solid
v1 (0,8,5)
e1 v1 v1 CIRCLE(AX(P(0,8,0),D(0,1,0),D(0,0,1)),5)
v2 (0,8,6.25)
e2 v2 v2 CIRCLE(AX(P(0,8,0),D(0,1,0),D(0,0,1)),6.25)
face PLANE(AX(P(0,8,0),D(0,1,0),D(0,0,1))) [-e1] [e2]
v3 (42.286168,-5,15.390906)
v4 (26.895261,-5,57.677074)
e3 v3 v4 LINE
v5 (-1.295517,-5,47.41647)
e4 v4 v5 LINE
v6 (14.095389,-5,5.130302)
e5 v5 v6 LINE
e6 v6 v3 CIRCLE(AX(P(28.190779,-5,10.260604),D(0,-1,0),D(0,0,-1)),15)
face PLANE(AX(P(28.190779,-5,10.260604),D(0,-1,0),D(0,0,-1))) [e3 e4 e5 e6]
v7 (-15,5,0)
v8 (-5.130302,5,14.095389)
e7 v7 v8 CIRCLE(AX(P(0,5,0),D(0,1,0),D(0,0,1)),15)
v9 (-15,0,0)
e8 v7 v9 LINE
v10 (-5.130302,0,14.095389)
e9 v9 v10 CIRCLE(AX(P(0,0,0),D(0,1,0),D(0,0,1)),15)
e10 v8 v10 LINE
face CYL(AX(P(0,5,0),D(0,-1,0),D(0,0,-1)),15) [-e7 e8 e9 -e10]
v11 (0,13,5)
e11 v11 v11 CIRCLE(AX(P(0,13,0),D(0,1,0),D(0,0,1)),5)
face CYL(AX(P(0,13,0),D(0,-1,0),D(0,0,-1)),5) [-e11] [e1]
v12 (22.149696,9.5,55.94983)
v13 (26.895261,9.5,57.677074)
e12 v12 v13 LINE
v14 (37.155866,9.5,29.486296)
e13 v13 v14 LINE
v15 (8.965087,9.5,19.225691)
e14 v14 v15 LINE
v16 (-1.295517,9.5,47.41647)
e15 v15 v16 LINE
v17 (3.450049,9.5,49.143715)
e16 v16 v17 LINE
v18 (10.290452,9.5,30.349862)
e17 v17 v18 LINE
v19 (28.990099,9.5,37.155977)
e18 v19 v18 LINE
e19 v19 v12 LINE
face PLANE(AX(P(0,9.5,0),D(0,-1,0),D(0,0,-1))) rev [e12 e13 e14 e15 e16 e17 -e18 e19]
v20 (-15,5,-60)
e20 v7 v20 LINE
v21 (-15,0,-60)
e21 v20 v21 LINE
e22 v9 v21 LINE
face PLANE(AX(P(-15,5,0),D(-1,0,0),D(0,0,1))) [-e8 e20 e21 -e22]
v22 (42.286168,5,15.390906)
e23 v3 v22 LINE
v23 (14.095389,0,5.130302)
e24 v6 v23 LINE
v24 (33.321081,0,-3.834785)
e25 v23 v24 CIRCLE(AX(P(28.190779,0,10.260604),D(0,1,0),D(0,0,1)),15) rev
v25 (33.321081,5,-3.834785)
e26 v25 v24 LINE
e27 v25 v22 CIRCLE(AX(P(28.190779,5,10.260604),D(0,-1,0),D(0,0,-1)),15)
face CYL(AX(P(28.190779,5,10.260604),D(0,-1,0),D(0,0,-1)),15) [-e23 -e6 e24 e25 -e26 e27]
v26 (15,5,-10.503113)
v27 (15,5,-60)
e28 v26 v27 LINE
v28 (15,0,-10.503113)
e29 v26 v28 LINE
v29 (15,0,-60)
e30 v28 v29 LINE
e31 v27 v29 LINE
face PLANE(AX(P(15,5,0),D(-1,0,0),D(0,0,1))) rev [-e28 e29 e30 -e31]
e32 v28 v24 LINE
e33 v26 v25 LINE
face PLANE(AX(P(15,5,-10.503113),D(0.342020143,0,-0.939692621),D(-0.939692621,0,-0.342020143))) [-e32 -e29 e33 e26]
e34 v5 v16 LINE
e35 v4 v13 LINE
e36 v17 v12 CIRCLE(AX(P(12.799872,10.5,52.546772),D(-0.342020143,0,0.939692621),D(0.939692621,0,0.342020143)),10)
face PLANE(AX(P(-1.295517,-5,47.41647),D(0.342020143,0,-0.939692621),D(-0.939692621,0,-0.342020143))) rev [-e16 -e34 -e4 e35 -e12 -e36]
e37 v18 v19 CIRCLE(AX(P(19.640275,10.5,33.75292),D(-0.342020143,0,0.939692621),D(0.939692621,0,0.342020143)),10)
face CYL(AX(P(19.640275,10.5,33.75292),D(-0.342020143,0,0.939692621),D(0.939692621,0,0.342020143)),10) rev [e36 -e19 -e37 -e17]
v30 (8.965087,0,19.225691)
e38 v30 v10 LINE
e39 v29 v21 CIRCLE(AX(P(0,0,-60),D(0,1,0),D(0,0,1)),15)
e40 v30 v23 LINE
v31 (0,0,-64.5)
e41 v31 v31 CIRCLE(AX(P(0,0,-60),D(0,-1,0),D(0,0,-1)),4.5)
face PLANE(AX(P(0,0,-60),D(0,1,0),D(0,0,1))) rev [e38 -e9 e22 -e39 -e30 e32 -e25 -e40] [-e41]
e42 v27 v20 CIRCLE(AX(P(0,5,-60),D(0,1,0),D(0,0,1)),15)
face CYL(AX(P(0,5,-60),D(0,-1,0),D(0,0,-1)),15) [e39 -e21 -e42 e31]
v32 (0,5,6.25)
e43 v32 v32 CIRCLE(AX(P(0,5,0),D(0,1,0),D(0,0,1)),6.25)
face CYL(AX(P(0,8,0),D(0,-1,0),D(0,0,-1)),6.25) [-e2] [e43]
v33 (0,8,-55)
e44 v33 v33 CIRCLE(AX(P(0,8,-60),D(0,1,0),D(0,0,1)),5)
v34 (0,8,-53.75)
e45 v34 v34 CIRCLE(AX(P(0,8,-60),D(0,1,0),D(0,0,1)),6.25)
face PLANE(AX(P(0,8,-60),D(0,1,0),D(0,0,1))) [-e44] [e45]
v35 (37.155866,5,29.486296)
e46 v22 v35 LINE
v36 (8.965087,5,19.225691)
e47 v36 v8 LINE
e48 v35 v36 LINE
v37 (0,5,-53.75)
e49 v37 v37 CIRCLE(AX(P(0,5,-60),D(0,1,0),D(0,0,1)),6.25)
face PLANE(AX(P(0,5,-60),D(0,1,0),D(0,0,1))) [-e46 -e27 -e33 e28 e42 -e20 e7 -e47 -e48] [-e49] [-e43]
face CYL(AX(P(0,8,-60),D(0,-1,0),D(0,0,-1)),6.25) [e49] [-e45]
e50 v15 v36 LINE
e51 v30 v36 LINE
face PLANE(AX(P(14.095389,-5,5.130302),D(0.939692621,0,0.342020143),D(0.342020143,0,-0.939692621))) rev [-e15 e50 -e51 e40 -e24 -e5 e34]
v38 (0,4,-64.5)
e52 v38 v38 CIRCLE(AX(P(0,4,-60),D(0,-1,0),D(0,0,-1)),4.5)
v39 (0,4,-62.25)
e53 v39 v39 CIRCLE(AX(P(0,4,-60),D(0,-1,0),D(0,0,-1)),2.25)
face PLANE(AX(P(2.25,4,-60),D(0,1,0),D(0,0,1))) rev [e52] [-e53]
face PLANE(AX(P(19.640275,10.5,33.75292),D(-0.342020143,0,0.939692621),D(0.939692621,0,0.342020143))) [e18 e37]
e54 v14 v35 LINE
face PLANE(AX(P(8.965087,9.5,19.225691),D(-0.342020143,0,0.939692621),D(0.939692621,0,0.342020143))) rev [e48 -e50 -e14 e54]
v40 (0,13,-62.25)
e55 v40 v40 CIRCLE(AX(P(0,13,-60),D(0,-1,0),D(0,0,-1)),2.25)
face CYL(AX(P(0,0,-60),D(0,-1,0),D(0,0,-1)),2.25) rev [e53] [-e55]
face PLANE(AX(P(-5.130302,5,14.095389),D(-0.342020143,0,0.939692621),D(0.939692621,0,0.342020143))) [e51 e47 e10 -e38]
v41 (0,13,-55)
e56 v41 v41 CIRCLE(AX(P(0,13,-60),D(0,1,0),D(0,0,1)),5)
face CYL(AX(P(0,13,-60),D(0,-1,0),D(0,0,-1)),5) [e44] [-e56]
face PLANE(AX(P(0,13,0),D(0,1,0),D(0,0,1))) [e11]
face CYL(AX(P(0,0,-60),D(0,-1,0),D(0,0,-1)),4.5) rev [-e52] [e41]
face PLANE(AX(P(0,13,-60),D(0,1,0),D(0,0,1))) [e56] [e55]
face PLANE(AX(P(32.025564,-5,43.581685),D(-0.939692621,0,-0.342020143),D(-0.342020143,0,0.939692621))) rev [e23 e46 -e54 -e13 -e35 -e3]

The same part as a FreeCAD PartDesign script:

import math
import FreeCAD as App
import Part
import Sketcher
Q = App.Units.Quantity


def add_polygon(sketch, points):
    """Adds a closed chain of lines whose ends are joined by coincident constraints."""
    first, n = sketch.GeometryCount, len(points)
    for a, b in zip(points, points[1:] + points[:1]):
        sketch.addGeometry(Part.LineSegment(App.Vector(*a, 0), App.Vector(*b, 0)), False)
    for i in range(n):
        sketch.addConstraint(Sketcher.Constraint("Coincident", first + i, 2, first + (i + 1) % n, 1))

doc = App.newDocument("Part")
body = doc.addObject("PartDesign::Body", "Body")

# Sketch on XZ plane
sketch1 = body.newObject("Sketcher::SketchObject", "Sketch")
sketch1.AttachmentSupport = (doc.getObject("XZ_Plane"), [""])
sketch1.MapMode = "FlatFace"
sketch1.addGeometry(Part.LineSegment(App.Vector(-15, -60, 0), App.Vector(-15, 0, 0)), False)
sketch1.addGeometry(Part.ArcOfCircle(Part.Circle(App.Vector(0, 0, 0), App.Vector(0, 0, 1), 15), math.radians(0), math.radians(180)), False)
sketch1.addGeometry(Part.LineSegment(App.Vector(15, 0, 0), App.Vector(15, -60, 0)), False)
sketch1.addGeometry(Part.ArcOfCircle(Part.Circle(App.Vector(0, -60, 0), App.Vector(0, 0, 1), 15), math.radians(180), math.radians(360)), False)
sketch1.addConstraint(Sketcher.Constraint("Tangent", 0, 2, 1, 2))
sketch1.addConstraint(Sketcher.Constraint("Tangent", 1, 1, 2, 1))
sketch1.addConstraint(Sketcher.Constraint("Tangent", 2, 2, 3, 2))
sketch1.addConstraint(Sketcher.Constraint("Tangent", 3, 1, 0, 1))
sketch1.addConstraint(Sketcher.Constraint("Vertical", 0))
sketch1.addConstraint(Sketcher.Constraint("Vertical", 2))
sketch1.addConstraint(Sketcher.Constraint("Coincident", 1, 3, -1, 1))
sketch1.addConstraint(Sketcher.Constraint("Radius", 1, 15.0))
sketch1.addConstraint(Sketcher.Constraint("DistanceY", 0, 1, 0, 2, 60.0))
pad1 = body.newObject("PartDesign::Pad", "Pad")
pad1.Profile = sketch1
pad1.Length = 5
pad1.Reversed = True

# Sketch on XZ plane
sketch2 = body.newObject("Sketcher::SketchObject", "Sketch001")
sketch2.AttachmentSupport = (doc.getObject("XZ_Plane"), [""])
sketch2.MapMode = "FlatFace"
sketch2.AttachmentOffset = App.Placement(App.Vector(0, 0, -5), App.Rotation())
sketch2.addGeometry(Part.Circle(App.Vector(0, -60, 0), App.Vector(0, 0, 1), 6), False)
sketch2.addGeometry(Part.Circle(App.Vector(0, 0, 0), App.Vector(0, 0, 1), 6), False)
sketch2.addConstraint(Sketcher.Constraint("Coincident", 1, 3, -1, 1))
sketch2.addConstraint(Sketcher.Constraint("Equal", 0, 1))
sketch2.addConstraint(Sketcher.Constraint("PointOnObject", 0, 3, -2))
sketch2.addConstraint(Sketcher.Constraint("Diameter", 0, 12.5))
sketch2.addConstraint(Sketcher.Constraint("DistanceY", 0, 3, -1, 1, 60.0))
pad2 = body.newObject("PartDesign::Pad", "Pad001")
pad2.Profile = sketch2
pad2.Length = 3
pad2.Reversed = True

# Sketch on XZ plane
sketch3 = body.newObject("Sketcher::SketchObject", "Sketch002")
sketch3.AttachmentSupport = (doc.getObject("XZ_Plane"), [""])
sketch3.MapMode = "FlatFace"
sketch3.AttachmentOffset = App.Placement(App.Vector(0, 0, -8), App.Rotation())
sketch3.addGeometry(Part.Circle(App.Vector(0, -60, 0), App.Vector(0, 0, 1), 5), False)
sketch3.addGeometry(Part.Circle(App.Vector(0, 0, 0), App.Vector(0, 0, 1), 5), False)
sketch3.addConstraint(Sketcher.Constraint("Coincident", 1, 3, -1, 1))
sketch3.addConstraint(Sketcher.Constraint("Equal", 0, 1))
sketch3.addConstraint(Sketcher.Constraint("PointOnObject", 0, 3, -2))
sketch3.addConstraint(Sketcher.Constraint("Diameter", 0, 10.0))
sketch3.addConstraint(Sketcher.Constraint("DistanceY", 0, 3, -1, 1, 60.0))
pad3 = body.newObject("PartDesign::Pad", "Pad002")
pad3.Profile = sketch3
pad3.Length = 5
pad3.Reversed = True

# Sketch on XZ plane
sketch4 = body.newObject("Sketcher::SketchObject", "Sketch003")
sketch4.AttachmentSupport = (doc.getObject("XZ_Plane"), [""])
sketch4.MapMode = "FlatFace"
sketch4.addGeometry(Part.Circle(App.Vector(0, -60, 0), App.Vector(0, 0, 1), 2.2), False)
sketch4.addGeometry(Part.Circle(App.Vector(0, 25, 0), App.Vector(0, 0, 1), 2.2), False)
sketch4.addConstraint(Sketcher.Constraint("Equal", 0, 1))
sketch4.addConstraint(Sketcher.Constraint("PointOnObject", 0, 3, -2))
sketch4.addConstraint(Sketcher.Constraint("PointOnObject", 1, 3, -2))
sketch4.addConstraint(Sketcher.Constraint("Diameter", 0, 4.5))
sketch4.addConstraint(Sketcher.Constraint("DistanceY", 0, 3, -1, 1, 60.0))
sketch4.addConstraint(Sketcher.Constraint("DistanceY", -1, 1, 1, 3, 25.0))
doc.recompute()
hole = body.newObject("PartDesign::Hole", "Hole")
hole.Profile = sketch4
hole.ThreadType = "None"
hole.Diameter = 4.5
hole.DepthType = "ThroughAll"
hole.HoleCutType = "Counterbore"
hole.HoleCutDiameter = 9
hole.HoleCutDepth = 4

# Sketch on XZ plane
sketch5 = body.newObject("Sketcher::SketchObject", "Sketch004")
sketch5.AttachmentSupport = (doc.getObject("XZ_Plane"), [""])
sketch5.MapMode = "FlatFace"
sketch5.addGeometry(Part.LineSegment(App.Vector(23, 24, 0), App.Vector(-5, 14, 0)), False)
sketch5.addGeometry(Part.ArcOfCircle(Part.Circle(App.Vector(0, 0, 0), App.Vector(0, 0, 1), 15), math.radians(0), math.radians(110)), False)
sketch5.addGeometry(Part.LineSegment(App.Vector(15, 0, 0), App.Vector(15, -11, 0)), False)
sketch5.addGeometry(Part.LineSegment(App.Vector(15, -11, 0), App.Vector(33, -4, 0)), False)
sketch5.addGeometry(Part.ArcOfCircle(Part.Circle(App.Vector(28, 10, 0), App.Vector(0, 0, 1), 15), math.radians(-70), math.radians(110)), False)
sketch5.addConstraint(Sketcher.Constraint("Tangent", 0, 2, 1, 2))
sketch5.addConstraint(Sketcher.Constraint("Tangent", 1, 1, 2, 1))
sketch5.addConstraint(Sketcher.Constraint("Coincident", 2, 2, 3, 1))
sketch5.addConstraint(Sketcher.Constraint("Tangent", 3, 2, 4, 1))
sketch5.addConstraint(Sketcher.Constraint("Tangent", 4, 2, 0, 1))
sketch5.addConstraint(Sketcher.Constraint("Vertical", 2))
sketch5.addConstraint(Sketcher.Constraint("Coincident", 1, 3, -1, 1))
sketch5.addConstraint(Sketcher.Constraint("Equal", 1, 4))
sketch5.addConstraint(Sketcher.Constraint("Parallel", 0, 3))
sketch5.addConstraint(Sketcher.Constraint("Radius", 1, 15.0))
sketch5.addConstraint(Sketcher.Constraint("Angle", 0, Q("-160 deg")))
sketch5.addConstraint(Sketcher.Constraint("Distance", 0, 30.0))
pad4 = body.newObject("PartDesign::Pad", "Pad003")
pad4.Profile = sketch5
pad4.Length = 5
pad4.Reversed = True

# Sketch on XZ plane
sketch6 = body.newObject("Sketcher::SketchObject", "Sketch005")
sketch6.AttachmentSupport = (doc.getObject("XZ_Plane"), [""])
sketch6.MapMode = "FlatFace"
sketch6.addGeometry(Part.LineSegment(App.Vector(4, 33, 0), App.Vector(14, 5, 0)), False)
sketch6.addGeometry(Part.ArcOfCircle(Part.Circle(App.Vector(28, 10, 0), App.Vector(0, 0, 1), 15), math.radians(-160), math.radians(20)), False)
sketch6.addGeometry(Part.LineSegment(App.Vector(42, 15, 0), App.Vector(32, 44, 0)), False)
sketch6.addGeometry(Part.LineSegment(App.Vector(32, 44, 0), App.Vector(27, 58, 0)), False)
sketch6.addGeometry(Part.LineSegment(App.Vector(27, 58, 0), App.Vector(-1, 47, 0)), False)
sketch6.addGeometry(Part.LineSegment(App.Vector(-1, 47, 0), App.Vector(4, 33, 0)), False)
sketch6.addConstraint(Sketcher.Constraint("Tangent", 0, 2, 1, 1))
sketch6.addConstraint(Sketcher.Constraint("Tangent", 1, 2, 2, 1))
sketch6.addConstraint(Sketcher.Constraint("Coincident", 2, 2, 3, 1))
sketch6.addConstraint(Sketcher.Constraint("Coincident", 3, 2, 4, 1))
sketch6.addConstraint(Sketcher.Constraint("Coincident", 4, 2, 5, 1))
sketch6.addConstraint(Sketcher.Constraint("Coincident", 5, 2, 0, 1))
sketch6.addConstraint(Sketcher.Constraint("Parallel", 0, 2))
sketch6.addConstraint(Sketcher.Constraint("Parallel", 2, 3))
sketch6.addConstraint(Sketcher.Constraint("Perpendicular", 3, 4))
sketch6.addConstraint(Sketcher.Constraint("Perpendicular", 4, 5))
sketch6.addConstraint(Sketcher.Constraint("Equal", 0, 2))
sketch6.addConstraint(Sketcher.Constraint("Equal", 2, 4))
sketch6.addConstraint(Sketcher.Constraint("Radius", 1, 15.0))
sketch6.addConstraint(Sketcher.Constraint("Angle", 0, Q("-70 deg")))
sketch6.addConstraint(Sketcher.Constraint("Distance", 3, 15.0))
sketch6.addConstraint(Sketcher.Constraint("DistanceX", -1, 1, 1, 3, 28.190779))
sketch6.addConstraint(Sketcher.Constraint("DistanceY", -1, 1, 4, 2, 47.41647))
pad5 = body.newObject("PartDesign::Pad", "Pad004")
pad5.Profile = sketch6
pad5.Type = "TwoLengths"
pad5.Length = 5
pad5.Length2 = 5

# Sketch on XZ plane
sketch7 = body.newObject("Sketcher::SketchObject", "Sketch006")
sketch7.AttachmentSupport = (doc.getObject("XZ_Plane"), [""])
sketch7.MapMode = "FlatFace"
sketch7.AttachmentOffset = App.Placement(App.Vector(0, 0, -5), App.Rotation())
add_polygon(sketch7, [(27, 58), (37, 29), (9, 19), (-1, 47)])  # lines 0-3
sketch7.addConstraint(Sketcher.Constraint("Perpendicular", 0, 1))
sketch7.addConstraint(Sketcher.Constraint("Perpendicular", 1, 2))
sketch7.addConstraint(Sketcher.Constraint("Perpendicular", 2, 3))
sketch7.addConstraint(Sketcher.Constraint("Equal", 0, 1))
sketch7.addConstraint(Sketcher.Constraint("Angle", 0, Q("-70 deg")))
sketch7.addConstraint(Sketcher.Constraint("Distance", 0, 30.0))
sketch7.addConstraint(Sketcher.Constraint("DistanceY", -1, 1, 1, 2, 19.225691))
sketch7.addConstraint(Sketcher.Constraint("DistanceX", -1, 1, 3, 2, 26.895261))
pad6 = body.newObject("PartDesign::Pad", "Pad005")
pad6.Profile = sketch7
pad6.Length = 4.5
pad6.Reversed = True

# Sketch on an angled plane
sketch8 = body.newObject("Sketcher::SketchObject", "Sketch007")
sketch8.Placement = App.Placement(App.Vector(-15.390906, 0, 42.286168), App.Rotation(App.Vector(0.939692621, 0, 0.342020143), App.Vector(0, 1, 0), App.Vector(-0.342020143, 0, 0.939692621), "ZXY"))
sketch8.addGeometry(Part.Circle(App.Vector(30, 11, 0), App.Vector(0, 0, 1), 10), False)
sketch8.addConstraint(Sketcher.Constraint("Diameter", 0, 20.0))
sketch8.addConstraint(Sketcher.Constraint("DistanceX", -1, 1, 0, 3, 30.0))
sketch8.addConstraint(Sketcher.Constraint("DistanceY", -1, 1, 0, 3, 10.5))
pocket1 = body.newObject("PartDesign::Pocket", "Pocket")
pocket1.Profile = sketch8
pocket1.Length = 20

doc.recompute()
